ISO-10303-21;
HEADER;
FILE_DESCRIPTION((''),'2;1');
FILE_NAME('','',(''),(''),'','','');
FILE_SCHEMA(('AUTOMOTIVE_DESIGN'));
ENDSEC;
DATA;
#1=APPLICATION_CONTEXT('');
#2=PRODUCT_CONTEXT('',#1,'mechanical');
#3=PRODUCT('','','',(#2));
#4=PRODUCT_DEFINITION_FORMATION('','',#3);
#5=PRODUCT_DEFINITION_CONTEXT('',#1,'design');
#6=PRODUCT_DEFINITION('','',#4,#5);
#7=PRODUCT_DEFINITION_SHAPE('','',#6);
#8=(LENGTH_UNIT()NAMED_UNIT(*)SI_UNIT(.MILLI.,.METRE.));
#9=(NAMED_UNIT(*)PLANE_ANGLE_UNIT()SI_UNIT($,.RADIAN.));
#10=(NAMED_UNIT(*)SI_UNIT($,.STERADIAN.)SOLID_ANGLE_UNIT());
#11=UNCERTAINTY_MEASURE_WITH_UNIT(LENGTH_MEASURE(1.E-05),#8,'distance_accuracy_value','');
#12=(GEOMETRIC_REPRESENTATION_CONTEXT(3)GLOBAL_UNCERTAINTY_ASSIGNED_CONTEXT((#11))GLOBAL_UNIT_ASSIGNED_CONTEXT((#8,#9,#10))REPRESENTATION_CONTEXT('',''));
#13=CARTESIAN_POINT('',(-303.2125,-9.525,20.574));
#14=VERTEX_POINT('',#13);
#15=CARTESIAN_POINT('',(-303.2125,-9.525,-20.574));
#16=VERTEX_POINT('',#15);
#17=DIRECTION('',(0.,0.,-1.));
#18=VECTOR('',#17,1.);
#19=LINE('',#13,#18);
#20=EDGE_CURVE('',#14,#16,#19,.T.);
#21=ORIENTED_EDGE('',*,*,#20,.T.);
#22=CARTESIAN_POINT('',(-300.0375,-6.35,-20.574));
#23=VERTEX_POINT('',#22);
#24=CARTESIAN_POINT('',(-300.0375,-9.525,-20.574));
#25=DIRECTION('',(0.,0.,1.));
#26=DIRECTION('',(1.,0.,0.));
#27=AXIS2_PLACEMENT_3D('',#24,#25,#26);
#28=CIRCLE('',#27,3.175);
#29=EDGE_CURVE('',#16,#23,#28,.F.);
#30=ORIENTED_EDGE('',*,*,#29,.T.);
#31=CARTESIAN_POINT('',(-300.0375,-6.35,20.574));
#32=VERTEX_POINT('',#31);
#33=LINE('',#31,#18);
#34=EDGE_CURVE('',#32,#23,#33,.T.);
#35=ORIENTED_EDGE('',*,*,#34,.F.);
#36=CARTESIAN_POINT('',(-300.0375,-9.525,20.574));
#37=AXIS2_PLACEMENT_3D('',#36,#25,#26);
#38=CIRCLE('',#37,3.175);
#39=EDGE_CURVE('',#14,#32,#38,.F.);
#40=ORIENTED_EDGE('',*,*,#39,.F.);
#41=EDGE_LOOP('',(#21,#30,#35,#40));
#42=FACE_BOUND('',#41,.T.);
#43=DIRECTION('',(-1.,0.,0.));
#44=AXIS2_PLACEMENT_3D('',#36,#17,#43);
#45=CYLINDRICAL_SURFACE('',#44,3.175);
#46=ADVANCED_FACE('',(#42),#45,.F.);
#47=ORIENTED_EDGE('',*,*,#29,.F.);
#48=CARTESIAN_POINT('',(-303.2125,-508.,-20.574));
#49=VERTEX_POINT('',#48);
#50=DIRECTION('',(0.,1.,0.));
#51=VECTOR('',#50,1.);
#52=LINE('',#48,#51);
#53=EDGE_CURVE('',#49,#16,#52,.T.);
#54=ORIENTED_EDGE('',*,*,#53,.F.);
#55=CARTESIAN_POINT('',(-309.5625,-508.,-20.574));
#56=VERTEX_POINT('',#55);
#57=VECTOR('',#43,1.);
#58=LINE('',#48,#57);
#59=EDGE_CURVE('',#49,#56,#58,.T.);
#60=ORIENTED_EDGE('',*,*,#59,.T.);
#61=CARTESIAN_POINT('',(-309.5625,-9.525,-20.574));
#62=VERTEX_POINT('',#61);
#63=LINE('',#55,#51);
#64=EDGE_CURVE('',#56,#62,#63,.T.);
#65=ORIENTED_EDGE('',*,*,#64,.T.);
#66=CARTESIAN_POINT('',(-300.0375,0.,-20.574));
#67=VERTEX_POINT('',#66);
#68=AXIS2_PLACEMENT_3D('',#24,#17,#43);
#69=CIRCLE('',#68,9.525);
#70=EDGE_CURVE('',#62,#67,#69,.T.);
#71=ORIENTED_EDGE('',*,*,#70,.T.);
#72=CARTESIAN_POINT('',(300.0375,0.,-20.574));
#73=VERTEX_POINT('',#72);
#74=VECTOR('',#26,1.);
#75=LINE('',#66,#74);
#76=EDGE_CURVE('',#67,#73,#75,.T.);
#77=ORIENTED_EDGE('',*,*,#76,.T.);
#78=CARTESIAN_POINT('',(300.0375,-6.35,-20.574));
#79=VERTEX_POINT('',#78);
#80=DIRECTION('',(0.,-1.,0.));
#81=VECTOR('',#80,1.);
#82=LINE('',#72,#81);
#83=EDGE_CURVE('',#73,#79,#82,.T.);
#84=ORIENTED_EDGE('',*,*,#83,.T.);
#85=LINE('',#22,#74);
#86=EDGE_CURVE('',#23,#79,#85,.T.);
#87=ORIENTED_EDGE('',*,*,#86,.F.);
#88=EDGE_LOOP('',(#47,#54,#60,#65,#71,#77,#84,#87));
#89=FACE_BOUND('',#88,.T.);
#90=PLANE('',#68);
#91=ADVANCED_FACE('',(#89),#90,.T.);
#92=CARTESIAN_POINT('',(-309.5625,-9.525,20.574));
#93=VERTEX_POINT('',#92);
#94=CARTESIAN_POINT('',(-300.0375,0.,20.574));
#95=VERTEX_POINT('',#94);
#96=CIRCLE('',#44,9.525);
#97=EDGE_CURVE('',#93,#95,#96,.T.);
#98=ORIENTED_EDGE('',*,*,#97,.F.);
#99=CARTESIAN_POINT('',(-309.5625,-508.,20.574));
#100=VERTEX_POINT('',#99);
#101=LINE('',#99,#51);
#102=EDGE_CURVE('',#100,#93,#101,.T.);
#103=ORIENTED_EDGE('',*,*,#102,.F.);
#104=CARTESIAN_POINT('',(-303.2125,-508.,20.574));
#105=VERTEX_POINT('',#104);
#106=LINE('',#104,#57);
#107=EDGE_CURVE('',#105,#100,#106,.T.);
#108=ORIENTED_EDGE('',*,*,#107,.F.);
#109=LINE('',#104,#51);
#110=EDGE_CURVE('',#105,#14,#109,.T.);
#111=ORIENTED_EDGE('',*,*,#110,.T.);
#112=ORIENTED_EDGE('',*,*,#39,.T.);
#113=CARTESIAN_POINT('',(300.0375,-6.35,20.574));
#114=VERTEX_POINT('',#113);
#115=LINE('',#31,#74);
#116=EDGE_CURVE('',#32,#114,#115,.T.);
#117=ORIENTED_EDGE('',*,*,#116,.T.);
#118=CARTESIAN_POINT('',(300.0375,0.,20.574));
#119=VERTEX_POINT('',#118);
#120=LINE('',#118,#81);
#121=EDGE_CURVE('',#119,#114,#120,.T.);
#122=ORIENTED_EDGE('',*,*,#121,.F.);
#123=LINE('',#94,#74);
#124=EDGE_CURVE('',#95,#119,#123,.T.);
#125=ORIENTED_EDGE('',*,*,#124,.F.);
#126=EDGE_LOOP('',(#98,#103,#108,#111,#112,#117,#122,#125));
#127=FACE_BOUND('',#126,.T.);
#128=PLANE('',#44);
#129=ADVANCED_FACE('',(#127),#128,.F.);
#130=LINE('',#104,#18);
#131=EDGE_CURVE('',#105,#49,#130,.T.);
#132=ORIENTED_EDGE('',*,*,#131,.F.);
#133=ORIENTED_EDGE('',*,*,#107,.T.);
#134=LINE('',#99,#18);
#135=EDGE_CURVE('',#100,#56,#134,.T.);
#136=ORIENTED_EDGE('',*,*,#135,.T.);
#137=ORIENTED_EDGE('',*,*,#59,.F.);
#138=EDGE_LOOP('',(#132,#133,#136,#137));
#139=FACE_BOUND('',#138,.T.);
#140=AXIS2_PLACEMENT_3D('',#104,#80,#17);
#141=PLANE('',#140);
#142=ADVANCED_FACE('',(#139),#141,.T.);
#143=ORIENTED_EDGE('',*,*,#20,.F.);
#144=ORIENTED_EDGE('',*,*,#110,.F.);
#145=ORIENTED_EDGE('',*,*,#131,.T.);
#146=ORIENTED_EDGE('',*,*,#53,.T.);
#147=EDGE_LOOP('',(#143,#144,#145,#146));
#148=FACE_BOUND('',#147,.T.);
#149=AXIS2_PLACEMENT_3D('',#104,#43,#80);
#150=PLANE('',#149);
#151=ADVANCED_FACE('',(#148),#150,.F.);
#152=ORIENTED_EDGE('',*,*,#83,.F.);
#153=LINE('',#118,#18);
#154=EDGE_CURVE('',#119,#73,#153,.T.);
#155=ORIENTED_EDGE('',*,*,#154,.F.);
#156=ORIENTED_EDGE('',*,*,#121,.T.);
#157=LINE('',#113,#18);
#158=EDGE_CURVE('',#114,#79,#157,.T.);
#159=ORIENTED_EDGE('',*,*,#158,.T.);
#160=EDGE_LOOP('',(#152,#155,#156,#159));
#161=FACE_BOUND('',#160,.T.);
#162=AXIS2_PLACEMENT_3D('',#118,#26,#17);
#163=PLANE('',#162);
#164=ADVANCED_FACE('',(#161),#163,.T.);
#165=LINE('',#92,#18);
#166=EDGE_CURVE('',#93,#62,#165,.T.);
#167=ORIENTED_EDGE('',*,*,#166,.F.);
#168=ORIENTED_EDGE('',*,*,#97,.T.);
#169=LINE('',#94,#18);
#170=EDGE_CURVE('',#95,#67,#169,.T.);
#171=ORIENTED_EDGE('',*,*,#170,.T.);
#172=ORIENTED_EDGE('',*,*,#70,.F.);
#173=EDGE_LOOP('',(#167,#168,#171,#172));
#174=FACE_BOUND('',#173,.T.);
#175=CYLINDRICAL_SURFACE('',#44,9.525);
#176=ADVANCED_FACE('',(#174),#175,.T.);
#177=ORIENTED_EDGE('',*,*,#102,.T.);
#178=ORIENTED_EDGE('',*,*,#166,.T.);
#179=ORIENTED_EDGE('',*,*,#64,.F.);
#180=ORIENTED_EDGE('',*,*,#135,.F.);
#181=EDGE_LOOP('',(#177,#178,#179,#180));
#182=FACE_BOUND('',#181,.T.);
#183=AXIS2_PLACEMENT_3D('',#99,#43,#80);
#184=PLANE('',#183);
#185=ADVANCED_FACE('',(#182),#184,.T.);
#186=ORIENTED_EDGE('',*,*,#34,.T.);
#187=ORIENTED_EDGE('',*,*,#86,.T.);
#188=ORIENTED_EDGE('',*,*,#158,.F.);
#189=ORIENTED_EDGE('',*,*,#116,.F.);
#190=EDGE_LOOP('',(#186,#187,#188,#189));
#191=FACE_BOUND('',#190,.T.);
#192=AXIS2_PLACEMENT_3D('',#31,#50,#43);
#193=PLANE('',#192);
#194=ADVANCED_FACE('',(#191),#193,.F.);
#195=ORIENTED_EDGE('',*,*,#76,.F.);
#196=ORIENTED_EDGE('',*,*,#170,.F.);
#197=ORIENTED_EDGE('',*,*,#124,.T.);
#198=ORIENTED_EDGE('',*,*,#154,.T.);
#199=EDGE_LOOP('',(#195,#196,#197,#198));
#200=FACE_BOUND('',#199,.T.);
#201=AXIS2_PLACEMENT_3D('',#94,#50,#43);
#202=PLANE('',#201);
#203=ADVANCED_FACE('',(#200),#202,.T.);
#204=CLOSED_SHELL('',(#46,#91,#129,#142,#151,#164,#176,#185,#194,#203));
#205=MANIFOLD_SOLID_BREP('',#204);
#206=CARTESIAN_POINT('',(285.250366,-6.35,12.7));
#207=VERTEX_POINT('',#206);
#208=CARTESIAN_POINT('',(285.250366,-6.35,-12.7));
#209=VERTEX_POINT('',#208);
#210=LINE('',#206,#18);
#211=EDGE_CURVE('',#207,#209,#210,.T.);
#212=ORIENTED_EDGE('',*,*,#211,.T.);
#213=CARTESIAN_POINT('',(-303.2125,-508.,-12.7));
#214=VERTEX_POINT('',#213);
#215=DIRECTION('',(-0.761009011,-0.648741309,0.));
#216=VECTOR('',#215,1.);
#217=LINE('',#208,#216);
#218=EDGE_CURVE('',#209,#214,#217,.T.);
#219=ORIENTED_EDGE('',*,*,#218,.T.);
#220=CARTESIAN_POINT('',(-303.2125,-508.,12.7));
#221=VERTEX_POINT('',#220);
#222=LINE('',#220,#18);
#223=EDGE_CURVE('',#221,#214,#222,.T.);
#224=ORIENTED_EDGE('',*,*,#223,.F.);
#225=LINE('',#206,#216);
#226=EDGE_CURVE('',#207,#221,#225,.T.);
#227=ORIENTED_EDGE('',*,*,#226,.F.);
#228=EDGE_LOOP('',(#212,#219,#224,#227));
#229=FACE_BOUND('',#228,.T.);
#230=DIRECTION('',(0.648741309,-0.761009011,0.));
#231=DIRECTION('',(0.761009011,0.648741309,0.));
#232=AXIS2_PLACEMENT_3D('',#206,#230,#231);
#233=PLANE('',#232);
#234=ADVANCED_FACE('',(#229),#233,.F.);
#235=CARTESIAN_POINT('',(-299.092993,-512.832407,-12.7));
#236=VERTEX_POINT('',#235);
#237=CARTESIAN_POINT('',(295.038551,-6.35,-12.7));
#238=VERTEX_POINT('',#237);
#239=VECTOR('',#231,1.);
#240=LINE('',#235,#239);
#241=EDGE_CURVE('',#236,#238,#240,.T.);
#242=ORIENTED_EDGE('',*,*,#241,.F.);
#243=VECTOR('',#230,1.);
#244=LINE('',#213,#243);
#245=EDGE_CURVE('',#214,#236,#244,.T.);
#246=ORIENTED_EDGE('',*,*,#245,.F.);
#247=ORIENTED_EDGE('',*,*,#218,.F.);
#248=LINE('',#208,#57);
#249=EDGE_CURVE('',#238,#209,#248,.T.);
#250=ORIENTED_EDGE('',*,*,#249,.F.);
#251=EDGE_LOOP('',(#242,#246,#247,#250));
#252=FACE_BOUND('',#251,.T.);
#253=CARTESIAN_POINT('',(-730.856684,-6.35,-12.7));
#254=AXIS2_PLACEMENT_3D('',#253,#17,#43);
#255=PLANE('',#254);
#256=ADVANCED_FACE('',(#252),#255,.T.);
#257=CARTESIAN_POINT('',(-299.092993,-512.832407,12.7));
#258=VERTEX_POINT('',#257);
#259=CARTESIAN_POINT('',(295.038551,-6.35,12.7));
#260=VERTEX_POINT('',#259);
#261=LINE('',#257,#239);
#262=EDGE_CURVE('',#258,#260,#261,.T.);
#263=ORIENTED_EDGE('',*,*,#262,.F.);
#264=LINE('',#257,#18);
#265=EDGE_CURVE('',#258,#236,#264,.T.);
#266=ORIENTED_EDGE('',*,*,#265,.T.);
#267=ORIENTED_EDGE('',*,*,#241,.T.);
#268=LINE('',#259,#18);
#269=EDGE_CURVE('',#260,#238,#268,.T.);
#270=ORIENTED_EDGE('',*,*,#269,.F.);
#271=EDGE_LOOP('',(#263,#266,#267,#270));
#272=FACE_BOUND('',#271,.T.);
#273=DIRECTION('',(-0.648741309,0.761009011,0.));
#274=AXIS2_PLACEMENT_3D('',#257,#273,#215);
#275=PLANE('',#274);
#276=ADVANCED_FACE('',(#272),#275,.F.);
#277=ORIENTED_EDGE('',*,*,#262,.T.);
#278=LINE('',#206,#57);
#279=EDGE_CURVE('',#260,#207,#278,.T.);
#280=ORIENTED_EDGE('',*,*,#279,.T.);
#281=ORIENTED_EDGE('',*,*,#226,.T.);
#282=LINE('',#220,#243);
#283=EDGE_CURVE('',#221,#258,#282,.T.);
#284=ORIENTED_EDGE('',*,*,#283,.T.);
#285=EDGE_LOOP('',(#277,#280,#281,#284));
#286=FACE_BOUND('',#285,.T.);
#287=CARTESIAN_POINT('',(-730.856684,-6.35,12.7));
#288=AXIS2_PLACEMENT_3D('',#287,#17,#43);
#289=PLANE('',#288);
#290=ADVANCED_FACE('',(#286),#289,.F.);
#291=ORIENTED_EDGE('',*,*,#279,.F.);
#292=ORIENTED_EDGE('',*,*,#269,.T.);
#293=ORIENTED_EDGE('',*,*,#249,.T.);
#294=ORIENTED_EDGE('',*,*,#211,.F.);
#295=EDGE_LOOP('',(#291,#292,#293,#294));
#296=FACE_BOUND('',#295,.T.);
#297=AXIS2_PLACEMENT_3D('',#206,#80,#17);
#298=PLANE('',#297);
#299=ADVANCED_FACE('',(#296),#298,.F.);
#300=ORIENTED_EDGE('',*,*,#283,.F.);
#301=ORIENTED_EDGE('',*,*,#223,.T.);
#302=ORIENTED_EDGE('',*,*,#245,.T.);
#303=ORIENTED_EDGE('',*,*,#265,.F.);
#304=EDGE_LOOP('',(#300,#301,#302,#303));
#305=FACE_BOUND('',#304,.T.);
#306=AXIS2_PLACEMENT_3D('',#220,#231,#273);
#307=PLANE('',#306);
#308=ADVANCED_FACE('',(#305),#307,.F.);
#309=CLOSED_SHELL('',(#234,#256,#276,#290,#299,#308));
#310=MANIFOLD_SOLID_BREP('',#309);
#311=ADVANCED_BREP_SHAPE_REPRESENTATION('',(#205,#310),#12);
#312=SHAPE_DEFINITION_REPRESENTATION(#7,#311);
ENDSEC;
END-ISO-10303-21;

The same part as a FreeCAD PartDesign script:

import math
import FreeCAD as App
import Part
import Sketcher
Q = App.Units.Quantity

doc = App.newDocument("Part")
body = doc.addObject("PartDesign::Body", "Body")

# Sketch on XY plane
sketch1 = body.newObject("Sketcher::SketchObject", "Sketch")
sketch1.AttachmentSupport = (doc.getObject("XY_Plane"), [""])
sketch1.MapMode = "FlatFace"
sketch1.addGeometry([
    Part.LineSegment(App.Vector(-309.5625, -9.525, 0), App.Vector(-309.5625, -508, 0)),  # 0
    Part.LineSegment(App.Vector(-309.5625, -508, 0), App.Vector(-303.2125, -508, 0)),  # 1
    Part.LineSegment(App.Vector(-303.2125, -508, 0), App.Vector(-303.2125, -9.525, 0)),  # 2
    Part.ArcOfCircle(Part.Circle(App.Vector(-300.0375, -9.525, 0), App.Vector(0, 0, 1), 3.175), math.radians(90), math.radians(180)),  # 3
    Part.LineSegment(App.Vector(-300.0375, -6.35, 0), App.Vector(300.0375, -6.35, 0)),  # 4
    Part.LineSegment(App.Vector(300.0375, -6.35, 0), App.Vector(300.0375, 0, 0)),  # 5
    Part.LineSegment(App.Vector(300.0375, 0, 0), App.Vector(-300.0375, 0, 0)),  # 6
    Part.ArcOfCircle(Part.Circle(App.Vector(-300.0375, -9.525, 0), App.Vector(0, 0, 1), 9.525), math.radians(90), math.radians(180)),  # 7
], False)
sketch1.addConstraint([
    Sketcher.Constraint("Coincident", 0, 2, 1, 1),
    Sketcher.Constraint("Coincident", 1, 2, 2, 1),
    Sketcher.Constraint("Tangent", 2, 2, 3, 2),
    Sketcher.Constraint("Tangent", 3, 1, 4, 1),
    Sketcher.Constraint("Coincident", 4, 2, 5, 1),
    Sketcher.Constraint("Coincident", 5, 2, 6, 1),
    Sketcher.Constraint("Tangent", 6, 2, 7, 1),
    Sketcher.Constraint("Tangent", 7, 2, 0, 1),
    Sketcher.Constraint("Vertical", 0),
    Sketcher.Constraint("Horizontal", 1),
    Sketcher.Constraint("Vertical", 2),
    Sketcher.Constraint("Horizontal", 4),
    Sketcher.Constraint("Vertical", 5),
    Sketcher.Constraint("Horizontal", 6),
    Sketcher.Constraint("Coincident", 7, 3, 3, 3),
    Sketcher.Constraint("Symmetric", 5, 2, 6, 2, -1, 1),
    Sketcher.Constraint("DistanceY", 0, 2, -1, 1, Q("20 in")),
    Sketcher.Constraint("Radius", 3, Q("0.125 in")),
    Sketcher.Constraint("Radius", 7, Q("0.375 in")),
    Sketcher.Constraint("DistanceX", 4, 1, 4, 2, Q("23.625 in")),
])
pad1 = body.newObject("PartDesign::Pad", "Pad")
pad1.Profile = sketch1
pad1.Length = Q("1.62 in")
pad1.Midplane = True
body2 = doc.addObject("PartDesign::Body", "Body001")

# Sketch on XY plane
sketch2 = body2.newObject("Sketcher::SketchObject", "Sketch001")
sketch2.AttachmentSupport = (doc.getObject("XY_Plane001"), [""])
sketch2.MapMode = "FlatFace"
sketch2.addGeometry([
    Part.LineSegment(App.Vector(285.250366, -6.35, 0), App.Vector(-303.2125, -508, 0)),
    Part.LineSegment(App.Vector(-303.2125, -508, 0), App.Vector(-299.092993, -512.832407, 0)),
    Part.LineSegment(App.Vector(-299.092993, -512.832407, 0), App.Vector(295.038551, -6.35, 0)),
    Part.LineSegment(App.Vector(295.038551, -6.35, 0), App.Vector(285.250366, -6.35, 0)),
], False)
sketch2.addConstraint([
    Sketcher.Constraint("Coincident", 0, 2, 1, 1),
    Sketcher.Constraint("Coincident", 1, 2, 2, 1),
    Sketcher.Constraint("Coincident", 2, 2, 3, 1),
    Sketcher.Constraint("Coincident", 3, 2, 0, 1),
    Sketcher.Constraint("Horizontal", 3),
    Sketcher.Constraint("Perpendicular", 0, 1),
    Sketcher.Constraint("Perpendicular", 1, 2),
    Sketcher.Constraint("DistanceY", 0, 2, -1, 1, Q("20 in")),
    Sketcher.Constraint("Distance", 1, Q("0.25 in")),
    Sketcher.Constraint("DistanceY", 2, 2, -1, 1, Q("0.25 in")),
    Sketcher.Constraint("DistanceX", 0, 2, -1, 1, Q("11.9375 in")),
    Sketcher.Constraint("Distance", 0, Q("773.266621 mm")),
])
pad2 = body2.newObject("PartDesign::Pad", "Pad001")
pad2.Profile = sketch2
pad2.Length = Q("1 in")
pad2.Midplane = True

doc.recompute()
